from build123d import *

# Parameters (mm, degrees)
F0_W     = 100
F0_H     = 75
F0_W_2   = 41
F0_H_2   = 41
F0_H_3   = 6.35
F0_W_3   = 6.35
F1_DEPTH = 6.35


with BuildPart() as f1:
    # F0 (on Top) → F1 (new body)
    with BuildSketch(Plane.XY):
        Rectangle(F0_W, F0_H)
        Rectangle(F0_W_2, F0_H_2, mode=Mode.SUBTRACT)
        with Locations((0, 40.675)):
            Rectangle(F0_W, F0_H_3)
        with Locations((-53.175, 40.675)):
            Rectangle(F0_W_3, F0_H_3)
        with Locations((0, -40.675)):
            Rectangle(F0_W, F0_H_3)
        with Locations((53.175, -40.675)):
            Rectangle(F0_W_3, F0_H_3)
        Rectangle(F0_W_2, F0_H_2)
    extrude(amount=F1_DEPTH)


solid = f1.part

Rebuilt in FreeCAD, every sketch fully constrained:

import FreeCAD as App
import Part
import Sketcher

V = App.Vector
Q = App.Units.Quantity


def add_polygon(sketch, points):
    """Adds a closed chain of lines whose ends are joined by coincident constraints."""
    first, n = sketch.GeometryCount, len(points)
    for a, b in zip(points, points[1:] + points[:1]):
        sketch.addGeometry(Part.LineSegment(App.Vector(*a, 0), App.Vector(*b, 0)), False)
    for i in range(n):
        sketch.addConstraint(Sketcher.Constraint("Coincident", first + i, 2, first + (i + 1) % n, 1))

doc = App.newDocument("Part")
body = doc.addObject("PartDesign::Body", "Body")

sketch1 = body.newObject("Sketcher::SketchObject", "Sketch")
sketch1.AttachmentSupport = (doc.getObject("XY_Plane"), [""])
sketch1.MapMode = "FlatFace"
add_polygon(sketch1, [(50, 44), (-56, 44), (-56, 38), (-50, 38), (-50, -44), (56, -44), (56, -38), (50, -38)])
sketch1.addConstraint(Sketcher.Constraint("Horizontal", 0))
sketch1.addConstraint(Sketcher.Constraint("Vertical", 1))
sketch1.addConstraint(Sketcher.Constraint("Horizontal", 2))
sketch1.addConstraint(Sketcher.Constraint("Vertical", 3))
sketch1.addConstraint(Sketcher.Constraint("Horizontal", 4))
sketch1.addConstraint(Sketcher.Constraint("Vertical", 5))
sketch1.addConstraint(Sketcher.Constraint("Horizontal", 6))
sketch1.addConstraint(Sketcher.Constraint("Vertical", 7))
sketch1.addConstraint(Sketcher.Constraint("Symmetric", 0, 2, 4, 2, -1, 1))
sketch1.addConstraint(Sketcher.Constraint("Symmetric", 2, 2, 6, 2, -1, 1))
sketch1.addConstraint(Sketcher.Constraint("Equal", 6, 1))
sketch1.addConstraint(Sketcher.Constraint("DistanceX", 2, 1, 2, 2, Q("0.25 in")))
sketch1.addConstraint(Sketcher.Constraint("DistanceX", 0, 2, 0, 1, 106.35))
sketch1.addConstraint(Sketcher.Constraint("DistanceY", 3, 2, 3, 1, 81.35))
pad1 = body.newObject("PartDesign::Pad", "Pad")
pad1.Profile = sketch1
pad1.Length = Q("0.25 in")

doc.recompute()
